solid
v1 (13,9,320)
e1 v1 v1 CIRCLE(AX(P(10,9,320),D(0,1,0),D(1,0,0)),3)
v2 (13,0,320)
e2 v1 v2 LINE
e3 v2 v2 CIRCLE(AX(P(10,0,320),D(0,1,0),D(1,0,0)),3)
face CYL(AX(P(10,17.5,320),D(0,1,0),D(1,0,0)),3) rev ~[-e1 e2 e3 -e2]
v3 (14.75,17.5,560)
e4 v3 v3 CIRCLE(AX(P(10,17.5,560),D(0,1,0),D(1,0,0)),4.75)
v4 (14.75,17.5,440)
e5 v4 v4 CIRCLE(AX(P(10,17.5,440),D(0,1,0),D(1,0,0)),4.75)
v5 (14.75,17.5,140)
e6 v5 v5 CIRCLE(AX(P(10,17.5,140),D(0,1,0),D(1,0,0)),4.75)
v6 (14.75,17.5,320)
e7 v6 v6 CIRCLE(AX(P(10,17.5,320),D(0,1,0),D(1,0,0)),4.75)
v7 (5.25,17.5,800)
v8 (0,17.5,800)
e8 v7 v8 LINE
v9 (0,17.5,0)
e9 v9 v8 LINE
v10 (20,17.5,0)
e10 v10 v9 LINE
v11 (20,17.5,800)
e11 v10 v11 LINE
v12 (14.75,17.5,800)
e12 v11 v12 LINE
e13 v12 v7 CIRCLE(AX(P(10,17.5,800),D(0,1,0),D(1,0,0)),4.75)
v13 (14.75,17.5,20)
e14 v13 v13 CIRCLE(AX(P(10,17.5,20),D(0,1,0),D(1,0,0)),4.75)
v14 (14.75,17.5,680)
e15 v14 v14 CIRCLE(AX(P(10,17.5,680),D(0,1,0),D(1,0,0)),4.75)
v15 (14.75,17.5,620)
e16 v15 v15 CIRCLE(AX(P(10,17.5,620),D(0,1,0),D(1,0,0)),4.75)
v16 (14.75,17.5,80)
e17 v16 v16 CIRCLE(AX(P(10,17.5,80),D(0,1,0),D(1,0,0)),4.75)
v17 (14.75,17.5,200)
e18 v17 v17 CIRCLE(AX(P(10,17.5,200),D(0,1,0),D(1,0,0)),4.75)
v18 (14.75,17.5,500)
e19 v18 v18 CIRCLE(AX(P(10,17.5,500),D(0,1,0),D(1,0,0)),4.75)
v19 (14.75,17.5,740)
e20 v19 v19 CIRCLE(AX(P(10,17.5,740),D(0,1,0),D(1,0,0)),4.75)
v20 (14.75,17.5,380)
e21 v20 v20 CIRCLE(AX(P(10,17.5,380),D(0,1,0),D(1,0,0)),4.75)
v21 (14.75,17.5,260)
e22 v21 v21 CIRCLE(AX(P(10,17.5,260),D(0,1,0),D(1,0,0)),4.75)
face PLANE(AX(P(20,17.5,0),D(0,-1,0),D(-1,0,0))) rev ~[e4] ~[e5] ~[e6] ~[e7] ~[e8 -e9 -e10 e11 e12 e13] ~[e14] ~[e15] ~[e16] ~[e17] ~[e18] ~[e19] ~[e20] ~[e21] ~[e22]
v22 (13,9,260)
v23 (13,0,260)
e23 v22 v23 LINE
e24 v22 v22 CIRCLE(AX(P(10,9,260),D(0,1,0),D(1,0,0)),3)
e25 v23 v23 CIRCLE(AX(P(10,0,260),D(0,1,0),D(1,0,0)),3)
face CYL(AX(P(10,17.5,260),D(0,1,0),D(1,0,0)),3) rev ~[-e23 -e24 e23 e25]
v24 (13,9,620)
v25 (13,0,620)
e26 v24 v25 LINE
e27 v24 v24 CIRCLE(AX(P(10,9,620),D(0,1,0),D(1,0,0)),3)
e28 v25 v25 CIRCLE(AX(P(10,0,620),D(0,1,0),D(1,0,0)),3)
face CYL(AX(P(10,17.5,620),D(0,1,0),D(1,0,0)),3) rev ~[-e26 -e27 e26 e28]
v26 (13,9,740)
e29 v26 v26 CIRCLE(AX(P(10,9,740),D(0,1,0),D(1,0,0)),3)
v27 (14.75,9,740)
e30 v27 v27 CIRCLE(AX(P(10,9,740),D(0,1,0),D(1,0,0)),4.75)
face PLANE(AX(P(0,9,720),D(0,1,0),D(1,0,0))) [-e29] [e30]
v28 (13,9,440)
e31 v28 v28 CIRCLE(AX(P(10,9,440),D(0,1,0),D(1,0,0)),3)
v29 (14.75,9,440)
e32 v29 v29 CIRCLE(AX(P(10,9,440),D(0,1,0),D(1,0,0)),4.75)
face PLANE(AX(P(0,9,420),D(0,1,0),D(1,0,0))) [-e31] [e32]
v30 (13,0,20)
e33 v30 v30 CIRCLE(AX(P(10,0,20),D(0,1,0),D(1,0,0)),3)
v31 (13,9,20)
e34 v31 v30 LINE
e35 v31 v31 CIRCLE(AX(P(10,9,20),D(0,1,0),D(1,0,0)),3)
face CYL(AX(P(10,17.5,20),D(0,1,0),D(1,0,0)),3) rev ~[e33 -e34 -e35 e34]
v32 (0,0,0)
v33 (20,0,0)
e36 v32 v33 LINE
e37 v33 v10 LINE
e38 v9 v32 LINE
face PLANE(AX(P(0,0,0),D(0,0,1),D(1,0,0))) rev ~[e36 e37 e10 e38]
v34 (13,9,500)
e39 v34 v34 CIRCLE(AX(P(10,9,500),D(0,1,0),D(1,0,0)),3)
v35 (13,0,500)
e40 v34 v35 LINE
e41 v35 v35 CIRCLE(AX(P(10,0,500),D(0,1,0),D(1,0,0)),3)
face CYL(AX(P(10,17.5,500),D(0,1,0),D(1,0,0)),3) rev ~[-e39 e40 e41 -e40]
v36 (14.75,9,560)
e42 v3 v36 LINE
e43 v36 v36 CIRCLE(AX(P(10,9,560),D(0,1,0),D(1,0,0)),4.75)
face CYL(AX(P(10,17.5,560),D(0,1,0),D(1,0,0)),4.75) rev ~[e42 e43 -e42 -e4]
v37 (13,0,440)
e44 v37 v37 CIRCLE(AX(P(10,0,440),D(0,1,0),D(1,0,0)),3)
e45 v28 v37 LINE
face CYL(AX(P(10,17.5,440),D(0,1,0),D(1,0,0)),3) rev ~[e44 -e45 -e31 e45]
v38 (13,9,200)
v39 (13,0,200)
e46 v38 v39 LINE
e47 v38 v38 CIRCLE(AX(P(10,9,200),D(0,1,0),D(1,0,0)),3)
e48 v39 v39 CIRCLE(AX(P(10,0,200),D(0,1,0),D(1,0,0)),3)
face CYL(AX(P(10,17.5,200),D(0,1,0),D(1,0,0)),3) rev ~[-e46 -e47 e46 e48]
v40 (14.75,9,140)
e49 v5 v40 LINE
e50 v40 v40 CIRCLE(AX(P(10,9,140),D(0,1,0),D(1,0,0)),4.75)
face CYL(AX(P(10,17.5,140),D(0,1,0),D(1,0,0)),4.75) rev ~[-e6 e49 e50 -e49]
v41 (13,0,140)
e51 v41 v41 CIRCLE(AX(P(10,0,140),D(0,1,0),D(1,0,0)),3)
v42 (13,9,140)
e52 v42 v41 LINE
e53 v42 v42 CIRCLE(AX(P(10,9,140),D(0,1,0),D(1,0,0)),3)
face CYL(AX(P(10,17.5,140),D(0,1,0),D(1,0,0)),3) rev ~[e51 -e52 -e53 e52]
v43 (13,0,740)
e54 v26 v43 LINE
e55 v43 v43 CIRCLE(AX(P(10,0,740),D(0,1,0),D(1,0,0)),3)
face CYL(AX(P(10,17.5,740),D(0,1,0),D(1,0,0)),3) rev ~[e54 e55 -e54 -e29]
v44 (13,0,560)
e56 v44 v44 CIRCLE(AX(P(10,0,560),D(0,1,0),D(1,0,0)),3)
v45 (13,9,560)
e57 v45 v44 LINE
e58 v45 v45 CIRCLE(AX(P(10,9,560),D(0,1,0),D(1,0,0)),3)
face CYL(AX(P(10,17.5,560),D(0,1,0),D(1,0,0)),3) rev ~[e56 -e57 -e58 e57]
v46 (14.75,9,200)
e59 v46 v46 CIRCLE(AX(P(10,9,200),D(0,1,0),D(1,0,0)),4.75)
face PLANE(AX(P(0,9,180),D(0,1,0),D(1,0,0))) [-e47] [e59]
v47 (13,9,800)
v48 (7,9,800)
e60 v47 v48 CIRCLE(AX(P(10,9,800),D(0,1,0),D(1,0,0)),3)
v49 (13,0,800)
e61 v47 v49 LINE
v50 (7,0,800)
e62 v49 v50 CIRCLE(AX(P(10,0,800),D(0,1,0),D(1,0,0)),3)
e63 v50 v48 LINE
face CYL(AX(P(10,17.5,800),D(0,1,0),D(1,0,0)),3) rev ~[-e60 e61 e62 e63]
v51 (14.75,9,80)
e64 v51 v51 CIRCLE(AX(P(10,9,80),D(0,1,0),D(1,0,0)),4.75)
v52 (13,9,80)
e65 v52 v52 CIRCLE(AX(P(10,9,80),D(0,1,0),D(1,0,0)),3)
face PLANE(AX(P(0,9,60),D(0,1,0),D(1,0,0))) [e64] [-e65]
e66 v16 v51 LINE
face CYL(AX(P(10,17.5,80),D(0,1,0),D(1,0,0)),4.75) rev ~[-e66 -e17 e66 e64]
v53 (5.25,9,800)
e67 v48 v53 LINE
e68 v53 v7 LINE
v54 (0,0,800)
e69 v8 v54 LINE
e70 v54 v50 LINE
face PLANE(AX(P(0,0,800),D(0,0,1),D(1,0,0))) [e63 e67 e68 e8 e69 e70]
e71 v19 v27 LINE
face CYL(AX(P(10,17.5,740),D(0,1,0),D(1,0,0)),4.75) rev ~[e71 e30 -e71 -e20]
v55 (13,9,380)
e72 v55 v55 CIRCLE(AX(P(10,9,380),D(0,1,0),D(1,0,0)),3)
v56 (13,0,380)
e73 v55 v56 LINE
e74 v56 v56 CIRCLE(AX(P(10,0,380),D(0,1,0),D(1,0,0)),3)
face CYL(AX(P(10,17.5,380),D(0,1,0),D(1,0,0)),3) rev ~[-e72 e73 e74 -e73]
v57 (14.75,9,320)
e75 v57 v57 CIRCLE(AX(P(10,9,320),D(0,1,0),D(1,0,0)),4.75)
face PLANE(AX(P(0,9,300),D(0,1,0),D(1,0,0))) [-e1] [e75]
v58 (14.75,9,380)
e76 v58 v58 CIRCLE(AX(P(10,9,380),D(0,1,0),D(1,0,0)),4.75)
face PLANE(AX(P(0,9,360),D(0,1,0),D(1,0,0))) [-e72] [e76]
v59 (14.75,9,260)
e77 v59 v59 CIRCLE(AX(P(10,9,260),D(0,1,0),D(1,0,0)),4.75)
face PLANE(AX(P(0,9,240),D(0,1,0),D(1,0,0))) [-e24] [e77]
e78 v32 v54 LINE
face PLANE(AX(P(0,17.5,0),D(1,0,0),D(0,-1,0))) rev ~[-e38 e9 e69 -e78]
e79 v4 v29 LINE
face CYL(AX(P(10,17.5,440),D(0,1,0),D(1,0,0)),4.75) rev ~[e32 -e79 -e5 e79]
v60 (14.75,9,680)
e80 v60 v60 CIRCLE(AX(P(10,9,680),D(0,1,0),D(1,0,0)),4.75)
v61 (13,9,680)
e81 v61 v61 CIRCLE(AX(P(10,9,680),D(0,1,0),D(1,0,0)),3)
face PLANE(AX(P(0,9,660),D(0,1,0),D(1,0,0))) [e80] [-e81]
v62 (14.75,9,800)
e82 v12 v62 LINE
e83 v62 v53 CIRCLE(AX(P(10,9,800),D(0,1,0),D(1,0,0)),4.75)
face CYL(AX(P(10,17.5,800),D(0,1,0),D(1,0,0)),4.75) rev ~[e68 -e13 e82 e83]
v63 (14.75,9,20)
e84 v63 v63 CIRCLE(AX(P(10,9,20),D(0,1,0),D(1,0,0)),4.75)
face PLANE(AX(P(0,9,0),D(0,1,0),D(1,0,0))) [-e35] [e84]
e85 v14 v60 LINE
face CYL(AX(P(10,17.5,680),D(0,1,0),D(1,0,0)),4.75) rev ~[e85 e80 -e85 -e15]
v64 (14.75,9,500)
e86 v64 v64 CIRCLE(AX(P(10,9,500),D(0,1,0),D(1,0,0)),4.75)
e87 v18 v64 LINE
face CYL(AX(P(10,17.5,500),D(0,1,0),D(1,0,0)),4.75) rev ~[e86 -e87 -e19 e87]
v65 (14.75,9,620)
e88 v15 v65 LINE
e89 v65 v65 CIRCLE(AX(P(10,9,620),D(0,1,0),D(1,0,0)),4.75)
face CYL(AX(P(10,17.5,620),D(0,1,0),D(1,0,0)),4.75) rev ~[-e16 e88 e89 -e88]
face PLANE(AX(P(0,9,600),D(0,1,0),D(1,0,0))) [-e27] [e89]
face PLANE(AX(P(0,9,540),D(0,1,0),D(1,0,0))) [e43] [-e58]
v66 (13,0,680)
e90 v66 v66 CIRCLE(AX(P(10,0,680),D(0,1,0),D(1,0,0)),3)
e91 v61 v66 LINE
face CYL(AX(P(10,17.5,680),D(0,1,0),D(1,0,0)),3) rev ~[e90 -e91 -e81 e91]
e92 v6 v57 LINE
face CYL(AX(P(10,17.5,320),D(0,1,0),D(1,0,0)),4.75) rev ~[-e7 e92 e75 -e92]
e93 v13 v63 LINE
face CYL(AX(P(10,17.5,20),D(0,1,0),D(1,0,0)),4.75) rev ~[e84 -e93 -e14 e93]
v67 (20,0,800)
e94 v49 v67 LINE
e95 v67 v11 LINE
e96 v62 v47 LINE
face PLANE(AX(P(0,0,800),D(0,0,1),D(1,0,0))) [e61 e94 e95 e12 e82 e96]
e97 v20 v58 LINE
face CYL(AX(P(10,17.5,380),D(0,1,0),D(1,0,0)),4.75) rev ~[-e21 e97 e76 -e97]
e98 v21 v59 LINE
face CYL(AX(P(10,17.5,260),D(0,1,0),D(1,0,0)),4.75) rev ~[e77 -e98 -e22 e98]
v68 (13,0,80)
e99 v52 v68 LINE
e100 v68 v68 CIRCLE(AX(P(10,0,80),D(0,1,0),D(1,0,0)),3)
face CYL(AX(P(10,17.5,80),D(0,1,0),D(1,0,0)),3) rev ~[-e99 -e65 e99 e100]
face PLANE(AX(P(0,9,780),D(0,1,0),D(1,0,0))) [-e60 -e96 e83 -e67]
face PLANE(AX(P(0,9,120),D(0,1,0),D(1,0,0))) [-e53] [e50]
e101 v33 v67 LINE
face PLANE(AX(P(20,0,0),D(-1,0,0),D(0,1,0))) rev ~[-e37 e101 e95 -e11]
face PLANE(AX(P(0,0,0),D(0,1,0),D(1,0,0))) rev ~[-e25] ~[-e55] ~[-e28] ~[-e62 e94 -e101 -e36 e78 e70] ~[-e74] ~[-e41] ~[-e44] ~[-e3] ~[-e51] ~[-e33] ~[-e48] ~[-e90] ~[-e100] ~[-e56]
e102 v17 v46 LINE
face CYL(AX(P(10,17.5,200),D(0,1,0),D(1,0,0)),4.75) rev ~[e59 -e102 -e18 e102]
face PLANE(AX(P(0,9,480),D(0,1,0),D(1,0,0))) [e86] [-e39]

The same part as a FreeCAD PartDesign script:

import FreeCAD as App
import Part
import Sketcher
from FreeCAD import Vector


def add_polygon(sketch, points):
    """Adds a closed chain of lines whose ends are joined by coincident constraints."""
    first, n = sketch.GeometryCount, len(points)
    for a, b in zip(points, points[1:] + points[:1]):
        sketch.addGeometry(Part.LineSegment(App.Vector(*a, 0), App.Vector(*b, 0)), False)
    for i in range(n):
        sketch.addConstraint(Sketcher.Constraint("Coincident", first + i, 2, first + (i + 1) % n, 1))

doc = App.newDocument("Part")
body = doc.addObject("PartDesign::Body", "Body")

# Sketch on XY plane
sketch1 = body.newObject("Sketcher::SketchObject", "Sketch")
sketch1.AttachmentSupport = (doc.getObject("XY_Plane"), [""])
sketch1.MapMode = "FlatFace"
add_polygon(sketch1, [(0, 18), (0, 0), (20, 0), (20, 18)])  # lines 0-3
sketch1.addConstraint(Sketcher.Constraint("Vertical", 0))
sketch1.addConstraint(Sketcher.Constraint("Horizontal", 1))
sketch1.addConstraint(Sketcher.Constraint("Vertical", 2))
sketch1.addConstraint(Sketcher.Constraint("Horizontal", 3))
sketch1.addConstraint(Sketcher.Constraint("Coincident", 0, 2, -1, 1))
sketch1.addConstraint(Sketcher.Constraint("DistanceX", 1, 1, 1, 2, 20.0))
sketch1.addConstraint(Sketcher.Constraint("DistanceY", 0, 2, 0, 1, 17.5))
pad1 = body.newObject("PartDesign::Pad", "Pad")
pad1.Profile = sketch1
pad1.Length = 800

# Sketch on XZ plane
sketch2 = body.newObject("Sketcher::SketchObject", "Sketch001")
sketch2.AttachmentSupport = (doc.getObject("XZ_Plane"), [""])
sketch2.MapMode = "FlatFace"
sketch2.AttachmentOffset = App.Placement(Vector(0, 0, -17.5), App.Rotation())
sketch2.addGeometry(Part.Circle(Vector(10, 20, 0), Vector(0, 0, 1), 3), False)
sketch2.addConstraint(Sketcher.Constraint("Diameter", 0, 6.0))
sketch2.addConstraint(Sketcher.Constraint("DistanceY", -1, 1, 0, 3, 20.0))
sketch2.addConstraint(Sketcher.Constraint("DistanceX", -1, 1, 0, 3, 10.0))
pocket1 = body.newObject("PartDesign::Pocket", "Pocket")
pocket1.Profile = sketch2
pocket1.Length = 17.5
pocket1.Reversed = True

# Sketch on XZ plane
sketch3 = body.newObject("Sketcher::SketchObject", "Sketch002")
sketch3.AttachmentSupport = (doc.getObject("XZ_Plane"), [""])
sketch3.MapMode = "FlatFace"
sketch3.AttachmentOffset = App.Placement(Vector(0, 0, -17.5), App.Rotation())
sketch3.addGeometry(Part.Circle(Vector(10, 20, 0), Vector(0, 0, 1), 4.8), False)
sketch3.addConstraint(Sketcher.Constraint("Diameter", 0, 9.5))
sketch3.addConstraint(Sketcher.Constraint("DistanceX", -1, 1, 0, 3, 10.0))
sketch3.addConstraint(Sketcher.Constraint("DistanceY", -1, 1, 0, 3, 20.0))
pocket2 = body.newObject("PartDesign::Pocket", "Pocket001")
pocket2.Profile = sketch3
pocket2.Length = 8.5
pocket2.Reversed = True
doc.recompute()

linearpattern = body.newObject("PartDesign::LinearPattern", "LinearPattern")
linearpattern.Originals = [pocket1, pocket2]
linearpattern.Direction = (doc.getObject("Z_Axis"), [""])
linearpattern.Mode = "offset"
linearpattern.Offset = 60
linearpattern.Occurrences = 18
body.Tip = linearpattern

doc.recompute()
